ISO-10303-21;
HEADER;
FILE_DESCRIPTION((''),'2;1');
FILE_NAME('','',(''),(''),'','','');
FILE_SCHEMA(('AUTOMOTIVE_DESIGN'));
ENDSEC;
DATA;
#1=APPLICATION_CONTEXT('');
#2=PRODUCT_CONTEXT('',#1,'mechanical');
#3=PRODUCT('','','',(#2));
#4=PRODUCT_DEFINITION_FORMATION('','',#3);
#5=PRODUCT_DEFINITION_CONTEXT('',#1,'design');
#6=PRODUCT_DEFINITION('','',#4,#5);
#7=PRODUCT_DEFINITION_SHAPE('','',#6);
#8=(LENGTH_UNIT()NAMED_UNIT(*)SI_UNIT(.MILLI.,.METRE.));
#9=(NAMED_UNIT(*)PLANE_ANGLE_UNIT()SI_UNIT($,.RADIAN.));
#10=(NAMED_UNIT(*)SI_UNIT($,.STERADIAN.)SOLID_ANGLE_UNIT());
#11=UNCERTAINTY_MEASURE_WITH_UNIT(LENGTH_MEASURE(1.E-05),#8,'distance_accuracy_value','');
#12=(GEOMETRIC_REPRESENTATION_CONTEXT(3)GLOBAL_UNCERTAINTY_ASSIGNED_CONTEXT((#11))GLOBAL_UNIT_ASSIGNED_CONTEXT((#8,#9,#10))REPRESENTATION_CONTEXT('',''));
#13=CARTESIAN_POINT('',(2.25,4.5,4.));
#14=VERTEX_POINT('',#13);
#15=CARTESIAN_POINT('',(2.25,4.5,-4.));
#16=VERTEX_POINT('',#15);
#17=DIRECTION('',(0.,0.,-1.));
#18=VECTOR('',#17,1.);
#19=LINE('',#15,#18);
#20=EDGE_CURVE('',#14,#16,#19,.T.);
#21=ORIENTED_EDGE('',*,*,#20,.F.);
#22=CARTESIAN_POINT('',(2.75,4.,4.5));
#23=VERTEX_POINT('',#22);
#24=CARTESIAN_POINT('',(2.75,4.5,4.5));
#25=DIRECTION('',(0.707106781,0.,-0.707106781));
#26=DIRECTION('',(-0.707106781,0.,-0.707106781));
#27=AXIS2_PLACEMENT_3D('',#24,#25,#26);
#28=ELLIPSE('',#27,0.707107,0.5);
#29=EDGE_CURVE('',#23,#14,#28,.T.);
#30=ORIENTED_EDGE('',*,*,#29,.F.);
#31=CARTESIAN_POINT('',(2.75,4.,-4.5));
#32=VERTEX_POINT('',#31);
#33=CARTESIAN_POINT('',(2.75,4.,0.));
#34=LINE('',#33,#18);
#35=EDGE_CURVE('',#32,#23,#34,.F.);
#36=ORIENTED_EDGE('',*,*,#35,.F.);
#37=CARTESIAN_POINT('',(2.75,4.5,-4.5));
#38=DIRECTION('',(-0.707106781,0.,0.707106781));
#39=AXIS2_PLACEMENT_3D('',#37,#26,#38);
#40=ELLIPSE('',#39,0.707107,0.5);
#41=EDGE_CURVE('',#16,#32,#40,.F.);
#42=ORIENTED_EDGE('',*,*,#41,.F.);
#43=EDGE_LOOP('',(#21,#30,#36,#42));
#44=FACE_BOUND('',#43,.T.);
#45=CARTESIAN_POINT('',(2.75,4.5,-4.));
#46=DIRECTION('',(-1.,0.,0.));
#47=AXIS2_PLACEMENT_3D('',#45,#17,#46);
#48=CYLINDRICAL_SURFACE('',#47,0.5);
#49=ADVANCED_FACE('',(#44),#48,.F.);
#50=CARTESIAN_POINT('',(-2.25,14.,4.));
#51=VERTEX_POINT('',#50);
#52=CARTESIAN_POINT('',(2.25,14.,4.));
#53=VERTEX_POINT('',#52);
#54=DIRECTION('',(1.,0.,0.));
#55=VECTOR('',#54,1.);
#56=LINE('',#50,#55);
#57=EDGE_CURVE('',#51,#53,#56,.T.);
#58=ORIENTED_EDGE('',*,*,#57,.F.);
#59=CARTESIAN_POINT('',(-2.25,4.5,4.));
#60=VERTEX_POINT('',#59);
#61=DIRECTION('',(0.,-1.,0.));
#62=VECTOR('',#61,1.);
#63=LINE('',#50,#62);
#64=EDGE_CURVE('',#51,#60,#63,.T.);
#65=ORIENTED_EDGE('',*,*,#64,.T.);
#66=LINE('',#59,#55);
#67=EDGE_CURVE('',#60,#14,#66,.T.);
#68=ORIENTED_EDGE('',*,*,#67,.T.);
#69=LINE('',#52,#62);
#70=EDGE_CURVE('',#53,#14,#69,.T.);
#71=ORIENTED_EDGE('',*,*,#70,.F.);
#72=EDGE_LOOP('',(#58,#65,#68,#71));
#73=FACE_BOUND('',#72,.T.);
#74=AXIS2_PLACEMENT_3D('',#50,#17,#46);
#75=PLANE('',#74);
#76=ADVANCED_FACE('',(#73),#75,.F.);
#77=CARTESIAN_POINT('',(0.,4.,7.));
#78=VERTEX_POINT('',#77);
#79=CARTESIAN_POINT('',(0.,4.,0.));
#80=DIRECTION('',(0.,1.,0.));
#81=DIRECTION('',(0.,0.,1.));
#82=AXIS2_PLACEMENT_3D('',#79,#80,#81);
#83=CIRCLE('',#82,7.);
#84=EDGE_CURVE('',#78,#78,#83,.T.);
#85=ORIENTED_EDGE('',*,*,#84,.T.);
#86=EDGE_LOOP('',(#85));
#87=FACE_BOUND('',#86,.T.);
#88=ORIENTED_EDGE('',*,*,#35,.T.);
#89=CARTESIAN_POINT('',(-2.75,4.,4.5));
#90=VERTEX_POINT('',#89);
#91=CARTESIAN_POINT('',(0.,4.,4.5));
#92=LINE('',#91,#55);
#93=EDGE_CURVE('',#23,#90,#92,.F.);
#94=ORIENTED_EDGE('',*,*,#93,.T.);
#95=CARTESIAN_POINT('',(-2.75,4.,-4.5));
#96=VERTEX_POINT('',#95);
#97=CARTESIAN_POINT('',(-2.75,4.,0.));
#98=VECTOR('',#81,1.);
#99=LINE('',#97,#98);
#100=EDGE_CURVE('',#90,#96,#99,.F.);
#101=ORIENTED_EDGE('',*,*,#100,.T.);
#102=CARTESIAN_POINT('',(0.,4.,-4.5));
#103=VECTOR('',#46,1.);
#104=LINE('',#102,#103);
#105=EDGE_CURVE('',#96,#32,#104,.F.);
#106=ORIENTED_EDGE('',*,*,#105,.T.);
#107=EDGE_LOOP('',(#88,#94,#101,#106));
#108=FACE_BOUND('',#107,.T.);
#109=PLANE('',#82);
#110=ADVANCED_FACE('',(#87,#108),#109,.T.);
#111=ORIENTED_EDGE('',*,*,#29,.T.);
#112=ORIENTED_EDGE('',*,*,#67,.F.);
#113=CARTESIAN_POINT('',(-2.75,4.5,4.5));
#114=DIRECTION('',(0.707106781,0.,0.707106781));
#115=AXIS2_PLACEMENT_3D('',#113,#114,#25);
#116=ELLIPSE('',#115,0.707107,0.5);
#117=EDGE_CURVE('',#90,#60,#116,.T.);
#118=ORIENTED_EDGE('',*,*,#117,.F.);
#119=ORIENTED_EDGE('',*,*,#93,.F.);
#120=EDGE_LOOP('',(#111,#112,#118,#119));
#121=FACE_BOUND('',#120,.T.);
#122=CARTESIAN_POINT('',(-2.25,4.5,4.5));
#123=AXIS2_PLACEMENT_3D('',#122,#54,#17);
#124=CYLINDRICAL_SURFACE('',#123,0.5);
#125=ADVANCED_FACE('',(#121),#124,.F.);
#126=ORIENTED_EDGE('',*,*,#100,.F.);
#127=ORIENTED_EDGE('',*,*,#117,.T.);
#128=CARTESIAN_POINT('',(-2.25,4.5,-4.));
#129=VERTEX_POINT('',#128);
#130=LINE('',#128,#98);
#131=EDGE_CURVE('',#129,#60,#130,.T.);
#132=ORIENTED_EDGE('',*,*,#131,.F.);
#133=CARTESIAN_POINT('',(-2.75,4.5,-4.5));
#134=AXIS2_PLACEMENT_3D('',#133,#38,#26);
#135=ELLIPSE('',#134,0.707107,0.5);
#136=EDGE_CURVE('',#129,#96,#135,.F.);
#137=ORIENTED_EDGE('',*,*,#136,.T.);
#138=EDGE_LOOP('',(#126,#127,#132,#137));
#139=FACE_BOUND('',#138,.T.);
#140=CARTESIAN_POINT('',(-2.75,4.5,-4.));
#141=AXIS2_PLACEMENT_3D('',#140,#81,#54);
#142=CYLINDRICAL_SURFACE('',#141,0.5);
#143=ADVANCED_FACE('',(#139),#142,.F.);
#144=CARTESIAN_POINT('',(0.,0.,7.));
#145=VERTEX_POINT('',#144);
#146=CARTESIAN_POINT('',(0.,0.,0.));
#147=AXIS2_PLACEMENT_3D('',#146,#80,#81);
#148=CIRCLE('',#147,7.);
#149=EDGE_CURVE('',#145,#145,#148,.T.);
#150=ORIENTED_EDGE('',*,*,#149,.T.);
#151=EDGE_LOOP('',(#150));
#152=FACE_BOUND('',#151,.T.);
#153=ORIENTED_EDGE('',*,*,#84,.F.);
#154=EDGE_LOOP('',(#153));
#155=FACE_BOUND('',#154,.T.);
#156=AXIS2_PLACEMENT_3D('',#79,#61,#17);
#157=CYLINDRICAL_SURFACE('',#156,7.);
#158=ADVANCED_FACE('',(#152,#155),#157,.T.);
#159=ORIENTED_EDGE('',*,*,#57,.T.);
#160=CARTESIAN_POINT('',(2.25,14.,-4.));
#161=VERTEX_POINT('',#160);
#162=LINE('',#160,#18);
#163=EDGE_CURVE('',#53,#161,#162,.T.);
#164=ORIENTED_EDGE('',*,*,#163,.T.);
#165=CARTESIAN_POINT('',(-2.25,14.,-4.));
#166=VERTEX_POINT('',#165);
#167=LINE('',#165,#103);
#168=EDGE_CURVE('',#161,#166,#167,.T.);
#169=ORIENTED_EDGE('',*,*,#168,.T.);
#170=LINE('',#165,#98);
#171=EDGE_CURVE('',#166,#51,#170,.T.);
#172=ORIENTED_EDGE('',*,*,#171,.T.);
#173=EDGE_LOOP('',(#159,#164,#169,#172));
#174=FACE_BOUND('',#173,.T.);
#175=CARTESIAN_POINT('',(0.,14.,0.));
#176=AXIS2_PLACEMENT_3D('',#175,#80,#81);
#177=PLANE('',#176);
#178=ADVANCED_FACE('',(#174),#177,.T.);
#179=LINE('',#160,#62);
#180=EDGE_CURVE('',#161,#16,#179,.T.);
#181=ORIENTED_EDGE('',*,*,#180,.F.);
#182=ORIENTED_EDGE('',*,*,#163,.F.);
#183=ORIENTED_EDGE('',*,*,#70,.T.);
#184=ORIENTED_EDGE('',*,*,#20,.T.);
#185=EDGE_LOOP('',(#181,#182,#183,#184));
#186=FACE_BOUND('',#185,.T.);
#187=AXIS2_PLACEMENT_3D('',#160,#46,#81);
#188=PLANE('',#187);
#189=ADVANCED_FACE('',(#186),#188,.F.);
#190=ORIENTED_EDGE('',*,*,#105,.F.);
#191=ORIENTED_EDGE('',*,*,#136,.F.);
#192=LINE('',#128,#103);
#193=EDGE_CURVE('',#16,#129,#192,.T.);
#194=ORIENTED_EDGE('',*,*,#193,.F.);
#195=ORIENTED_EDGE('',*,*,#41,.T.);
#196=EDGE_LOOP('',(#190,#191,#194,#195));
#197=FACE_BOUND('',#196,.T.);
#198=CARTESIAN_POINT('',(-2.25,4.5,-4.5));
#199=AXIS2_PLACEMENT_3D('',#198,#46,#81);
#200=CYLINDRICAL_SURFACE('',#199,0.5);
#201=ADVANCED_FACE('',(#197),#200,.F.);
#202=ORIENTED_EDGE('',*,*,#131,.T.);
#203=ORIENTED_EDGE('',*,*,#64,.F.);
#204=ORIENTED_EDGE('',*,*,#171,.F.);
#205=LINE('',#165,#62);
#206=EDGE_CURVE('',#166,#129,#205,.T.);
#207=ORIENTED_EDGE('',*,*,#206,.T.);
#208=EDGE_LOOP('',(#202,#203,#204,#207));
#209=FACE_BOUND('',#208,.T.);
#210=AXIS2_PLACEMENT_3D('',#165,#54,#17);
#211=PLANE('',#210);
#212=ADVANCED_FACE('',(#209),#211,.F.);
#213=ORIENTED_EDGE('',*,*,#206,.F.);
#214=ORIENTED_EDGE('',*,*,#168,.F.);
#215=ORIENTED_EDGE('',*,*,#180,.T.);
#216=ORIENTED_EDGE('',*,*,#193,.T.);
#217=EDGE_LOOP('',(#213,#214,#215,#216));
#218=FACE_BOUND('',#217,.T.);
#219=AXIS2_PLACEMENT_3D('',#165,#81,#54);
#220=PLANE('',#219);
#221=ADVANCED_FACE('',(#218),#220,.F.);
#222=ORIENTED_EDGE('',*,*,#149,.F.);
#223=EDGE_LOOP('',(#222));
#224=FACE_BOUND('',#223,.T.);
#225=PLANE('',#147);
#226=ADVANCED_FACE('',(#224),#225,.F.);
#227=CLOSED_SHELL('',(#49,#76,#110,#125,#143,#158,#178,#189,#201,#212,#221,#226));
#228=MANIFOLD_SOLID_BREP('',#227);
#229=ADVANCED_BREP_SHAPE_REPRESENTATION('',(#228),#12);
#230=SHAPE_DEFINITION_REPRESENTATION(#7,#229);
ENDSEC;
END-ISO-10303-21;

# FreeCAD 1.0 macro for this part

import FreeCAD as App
import Part
import Sketcher


def edges_at(feature, points):
    """Names of the edges that pass closest to the given points."""
    edges = feature.Shape.Edges
    near = lambda p: min(range(len(edges)), key=lambda i: edges[i].distToShape(Part.Vertex(*p))[0])
    return sorted({f"Edge{near(p) + 1}" for p in points})

doc = App.newDocument("Part")
body = doc.addObject("PartDesign::Body", "Body")

sketch1 = body.newObject("Sketcher::SketchObject", "Sketch")
sketch1.AttachmentSupport = (doc.getObject("XZ_Plane"), [""])
sketch1.MapMode = "FlatFace"
sketch1.addGeometry(Part.Circle(App.Vector(0, 0, 0), App.Vector(0, 0, 1), 7), False)
sketch1.addConstraint([
    Sketcher.Constraint("Coincident", 0, 3, -1, 1),
    Sketcher.Constraint("Diameter", 0, 14.0),
])
pad1 = body.newObject("PartDesign::Pad", "Pad")
pad1.Profile = sketch1
pad1.Length = 4
pad1.Reversed = True

sketch2 = body.newObject("Sketcher::SketchObject", "Sketch001")
sketch2.AttachmentSupport = (doc.getObject("XZ_Plane"), [""])
sketch2.MapMode = "FlatFace"
sketch2.AttachmentOffset = App.Placement(App.Vector(0, 0, -4), App.Rotation())
sketch2.addGeometry([
    Part.LineSegment(App.Vector(-2.25, -4, 0), App.Vector(-2.25, 4, 0)),
    Part.LineSegment(App.Vector(-2.25, 4, 0), App.Vector(2.25, 4, 0)),
    Part.LineSegment(App.Vector(2.25, 4, 0), App.Vector(2.25, -4, 0)),
    Part.LineSegment(App.Vector(2.25, -4, 0), App.Vector(-2.25, -4, 0)),
], False)
sketch2.addConstraint([
    Sketcher.Constraint("Coincident", 0, 2, 1, 1),
    Sketcher.Constraint("Coincident", 1, 2, 2, 1),
    Sketcher.Constraint("Coincident", 2, 2, 3, 1),
    Sketcher.Constraint("Coincident", 3, 2, 0, 1),
    Sketcher.Constraint("Vertical", 0),
    Sketcher.Constraint("Horizontal", 1),
    Sketcher.Constraint("Vertical", 2),
    Sketcher.Constraint("Horizontal", 3),
    Sketcher.Constraint("Symmetric", 0, 2, 2, 2, -1, 1),
    Sketcher.Constraint("DistanceY", 0, 1, 0, 2, 8.0),
    Sketcher.Constraint("DistanceX", 1, 1, 1, 2, 4.5),
])
pad2 = body.newObject("PartDesign::Pad", "Pad001")
pad2.Profile = sketch2
pad2.Length = 10
pad2.Reversed = True
doc.recompute()

fillet = body.newObject("PartDesign::Fillet", "Fillet")
fillet.Base = (pad2, edges_at(pad2, [
    (-2.25, 4, 0),
    (0, 4, 4),
    (2.25, 4, 0),
    (0, 4, -4),
]))
fillet.Radius = 0.5

doc.recompute()
